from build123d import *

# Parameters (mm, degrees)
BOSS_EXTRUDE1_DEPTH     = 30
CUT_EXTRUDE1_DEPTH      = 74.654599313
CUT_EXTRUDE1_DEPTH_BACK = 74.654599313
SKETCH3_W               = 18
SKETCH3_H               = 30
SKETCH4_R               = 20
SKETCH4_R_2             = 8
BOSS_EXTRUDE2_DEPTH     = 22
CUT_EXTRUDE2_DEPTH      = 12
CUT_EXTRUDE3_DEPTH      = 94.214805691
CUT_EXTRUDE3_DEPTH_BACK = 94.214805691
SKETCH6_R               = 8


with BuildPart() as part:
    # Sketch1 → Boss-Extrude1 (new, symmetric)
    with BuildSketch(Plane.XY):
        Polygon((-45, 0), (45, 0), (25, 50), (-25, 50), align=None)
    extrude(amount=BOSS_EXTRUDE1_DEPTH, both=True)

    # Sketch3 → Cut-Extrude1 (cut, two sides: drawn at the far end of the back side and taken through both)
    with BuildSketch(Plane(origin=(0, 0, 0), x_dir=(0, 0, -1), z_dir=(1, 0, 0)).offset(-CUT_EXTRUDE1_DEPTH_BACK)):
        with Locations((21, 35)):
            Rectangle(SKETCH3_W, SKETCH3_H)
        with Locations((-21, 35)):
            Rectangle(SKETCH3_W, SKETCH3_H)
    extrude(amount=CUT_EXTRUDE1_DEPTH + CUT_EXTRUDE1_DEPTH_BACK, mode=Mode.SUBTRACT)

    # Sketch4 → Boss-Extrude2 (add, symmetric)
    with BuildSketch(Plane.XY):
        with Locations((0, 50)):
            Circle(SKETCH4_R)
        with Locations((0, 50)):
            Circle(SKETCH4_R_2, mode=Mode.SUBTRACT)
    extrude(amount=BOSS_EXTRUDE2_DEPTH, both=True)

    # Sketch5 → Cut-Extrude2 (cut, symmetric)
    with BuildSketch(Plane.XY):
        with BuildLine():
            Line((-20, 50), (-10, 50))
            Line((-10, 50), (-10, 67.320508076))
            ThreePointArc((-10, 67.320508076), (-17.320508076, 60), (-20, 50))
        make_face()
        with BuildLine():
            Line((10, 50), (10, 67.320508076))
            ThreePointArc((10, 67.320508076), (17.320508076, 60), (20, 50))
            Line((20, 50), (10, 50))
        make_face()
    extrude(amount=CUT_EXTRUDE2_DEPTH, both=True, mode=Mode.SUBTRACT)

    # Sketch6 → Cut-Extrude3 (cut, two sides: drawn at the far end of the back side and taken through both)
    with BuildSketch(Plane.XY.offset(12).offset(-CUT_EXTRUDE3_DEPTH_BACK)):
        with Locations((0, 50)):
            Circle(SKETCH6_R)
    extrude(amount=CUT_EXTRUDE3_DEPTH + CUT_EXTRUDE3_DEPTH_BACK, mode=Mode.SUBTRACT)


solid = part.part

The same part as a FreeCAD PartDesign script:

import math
import FreeCAD as App
import Part
import Sketcher

V = App.Vector
Q = App.Units.Quantity

doc = App.newDocument("Part")
params = doc.addObject("Spreadsheet::Sheet", "Params")
for row, (alias, value) in enumerate([
    ("sketch1_width", "90 mm"),
    ("sketch1_width2", "50 mm"),
    ("pad1_length", "60 mm"),
    ("sketch2_width", "30 mm"),
    ("sketch2_height", "18 mm"),
    ("sketch3_diameter", "40 mm"),
    ("sketch3_diameter2", "16 mm"),
    ("pad2_length", "44 mm"),
    ("sketch4_radius", "20 mm"),
    ("sketch4_width", "10 mm"),
    ("pocket2_length", "24 mm"),
    ("sketch5_diameter", "16 mm"),
], start=1):
    params.set(f"A{row}", alias)
    params.set(f"B{row}", "=" + value)
    params.setAlias(f"B{row}", alias)

body = doc.addObject("PartDesign::Body", "Body")

sketch1 = body.newObject("Sketcher::SketchObject", "Sketch")
sketch1.AttachmentSupport = (doc.getObject("XY_Plane"), [""])
sketch1.MapMode = "FlatFace"
sketch1.addGeometry([
    Part.LineSegment(V(-45, 0, 0), V(45, 0, 0)),
    Part.LineSegment(V(45, 0, 0), V(25, 50, 0)),
    Part.LineSegment(V(25, 50, 0), V(-25, 50, 0)),
    Part.LineSegment(V(-25, 50, 0), V(-45, 0, 0)),
], False)
sketch1.addConstraint([
    Sketcher.Constraint("Coincident", 0, 2, 1, 1),
    Sketcher.Constraint("Coincident", 1, 2, 2, 1),
    Sketcher.Constraint("Coincident", 2, 2, 3, 1),
    Sketcher.Constraint("Coincident", 3, 2, 0, 1),
    Sketcher.Constraint("Horizontal", 0),
    Sketcher.Constraint("Horizontal", 2),
    Sketcher.Constraint("Symmetric", 0, 2, 3, 2, -1, 1),
    Sketcher.Constraint("Equal", 1, 3),
    Sketcher.Constraint("DistanceX", 0, 1, 0, 2, Q("90 mm")),
    Sketcher.Constraint("DistanceX", 2, 2, 2, 1, Q("50 mm")),
    Sketcher.Constraint("DistanceY", -1, 1, 1, 2, Q("50 mm")),
])
sketch1.setExpression("Constraints[8]", "Params.sketch1_width")
sketch1.setExpression("Constraints[9]", "Params.sketch1_width2")
pad1 = body.newObject("PartDesign::Pad", "Pad")
pad1.Profile = sketch1
pad1.setExpression("Length", "Params.pad1_length")
pad1.Midplane = True

sketch2 = body.newObject("Sketcher::SketchObject", "Sketch001")
sketch2.AttachmentSupport = (doc.getObject("YZ_Plane"), [""])
sketch2.MapMode = "FlatFace"
sketch2.addGeometry([
    Part.LineSegment(V(50, -12, 0), V(20, -12, 0)),
    Part.LineSegment(V(20, -12, 0), V(20, -30, 0)),
    Part.LineSegment(V(20, -30, 0), V(50, -30, 0)),
    Part.LineSegment(V(50, -30, 0), V(50, -12, 0)),
    Part.LineSegment(V(50, 30, 0), V(20, 30, 0)),
    Part.LineSegment(V(20, 30, 0), V(20, 12, 0)),
    Part.LineSegment(V(20, 12, 0), V(50, 12, 0)),
    Part.LineSegment(V(50, 12, 0), V(50, 30, 0)),
], False)
sketch2.addConstraint([
    Sketcher.Constraint("Coincident", 0, 2, 1, 1),
    Sketcher.Constraint("Coincident", 1, 2, 2, 1),
    Sketcher.Constraint("Coincident", 2, 2, 3, 1),
    Sketcher.Constraint("Coincident", 3, 2, 0, 1),
    Sketcher.Constraint("Coincident", 4, 2, 5, 1),
    Sketcher.Constraint("Coincident", 5, 2, 6, 1),
    Sketcher.Constraint("Coincident", 6, 2, 7, 1),
    Sketcher.Constraint("Coincident", 7, 2, 4, 1),
    Sketcher.Constraint("Horizontal", 0),
    Sketcher.Constraint("Vertical", 1),
    Sketcher.Constraint("Horizontal", 2),
    Sketcher.Constraint("Vertical", 3),
    Sketcher.Constraint("Horizontal", 4),
    Sketcher.Constraint("Vertical", 5),
    Sketcher.Constraint("Horizontal", 6),
    Sketcher.Constraint("Vertical", 7),
    Sketcher.Constraint("Symmetric", 1, 2, 4, 2, -1),
    Sketcher.Constraint("Symmetric", 3, 2, 6, 2, -1),
    Sketcher.Constraint("DistanceX", 0, 2, 0, 1, Q("30 mm")),
    Sketcher.Constraint("DistanceY", 1, 2, 1, 1, Q("18 mm")),
    Sketcher.Constraint("DistanceX", -1, 1, 0, 2, Q("20 mm")),
    Sketcher.Constraint("DistanceY", 0, 2, -1, 1, Q("12 mm")),
])
sketch2.setExpression("Constraints[18]", "Params.sketch2_width")
sketch2.setExpression("Constraints[19]", "Params.sketch2_height")
pocket1 = body.newObject("PartDesign::Pocket", "Pocket")
pocket1.Profile = sketch2
pocket1.Type = "ThroughAll"
pocket1.Midplane = True

sketch3 = body.newObject("Sketcher::SketchObject", "Sketch002")
sketch3.AttachmentSupport = (doc.getObject("XY_Plane"), [""])
sketch3.MapMode = "FlatFace"
sketch3.addGeometry([
    Part.Circle(V(0, 50, 0), V(0, 0, 1), 20),
    Part.Circle(V(0, 50, 0), V(0, 0, 1), 8),
], False)
sketch3.addConstraint([
    Sketcher.Constraint("Coincident", 1, 3, 0, 3),
    Sketcher.Constraint("PointOnObject", 0, 3, -2),
    Sketcher.Constraint("Diameter", 0, Q("40 mm")),
    Sketcher.Constraint("Diameter", 1, Q("16 mm")),
    Sketcher.Constraint("DistanceY", -1, 1, 0, 3, Q("50 mm")),
])
sketch3.setExpression("Constraints[2]", "Params.sketch3_diameter")
sketch3.setExpression("Constraints[3]", "Params.sketch3_diameter2")
pad2 = body.newObject("PartDesign::Pad", "Pad001")
pad2.Profile = sketch3
pad2.setExpression("Length", "Params.pad2_length")
pad2.Midplane = True

sketch4 = body.newObject("Sketcher::SketchObject", "Sketch003")
sketch4.AttachmentSupport = (doc.getObject("XY_Plane"), [""])
sketch4.MapMode = "FlatFace"
sketch4.addGeometry([
    Part.LineSegment(V(-20, 50, 0), V(-10, 50, 0)),
    Part.LineSegment(V(-10, 50, 0), V(-10, 67, 0)),
    Part.ArcOfCircle(Part.Circle(V(0, 50, 0), V(0, 0, 1), 20), math.radians(120), math.radians(180)),
    Part.LineSegment(V(10, 67, 0), V(10, 50, 0)),
    Part.LineSegment(V(10, 50, 0), V(20, 50, 0)),
    Part.ArcOfCircle(Part.Circle(V(0, 50, 0), V(0, 0, 1), 20), math.radians(0), math.radians(60)),
], False)
sketch4.addConstraint([
    Sketcher.Constraint("Coincident", 0, 2, 1, 1),
    Sketcher.Constraint("Coincident", 1, 2, 2, 1),
    Sketcher.Constraint("Coincident", 2, 2, 0, 1),
    Sketcher.Constraint("Coincident", 3, 2, 4, 1),
    Sketcher.Constraint("Coincident", 4, 2, 5, 1),
    Sketcher.Constraint("Coincident", 5, 2, 3, 1),
    Sketcher.Constraint("Horizontal", 0),
    Sketcher.Constraint("Vertical", 1),
    Sketcher.Constraint("Vertical", 3),
    Sketcher.Constraint("Horizontal", 4),
    Sketcher.Constraint("Coincident", 5, 3, 2, 3),
    Sketcher.Constraint("Equal", 2, 5),
    Sketcher.Constraint("Symmetric", 0, 2, 3, 2, -2),
    Sketcher.Constraint("PointOnObject", 2, 3, -2),
    Sketcher.Constraint("Horizontal", 5, 3, 0, 2),
    Sketcher.Constraint("Radius", 2, Q("20 mm")),
    Sketcher.Constraint("DistanceX", 0, 1, 0, 2, Q("10 mm")),
    Sketcher.Constraint("DistanceY", -1, 1, 2, 3, Q("50 mm")),
])
sketch4.setExpression("Constraints[15]", "Params.sketch4_radius")
sketch4.setExpression("Constraints[16]", "Params.sketch4_width")
pocket2 = body.newObject("PartDesign::Pocket", "Pocket001")
pocket2.Profile = sketch4
pocket2.setExpression("Length", "Params.pocket2_length")
pocket2.Midplane = True

sketch5 = body.newObject("Sketcher::SketchObject", "Sketch004")
sketch5.AttachmentSupport = (doc.getObject("XY_Plane"), [""])
sketch5.MapMode = "FlatFace"
sketch5.AttachmentOffset = App.Placement(V(0, 0, 12), App.Rotation())
sketch5.addGeometry(Part.Circle(V(0, 50, 0), V(0, 0, 1), 8), False)
sketch5.addConstraint([
    Sketcher.Constraint("PointOnObject", 0, 3, -2),
    Sketcher.Constraint("Diameter", 0, Q("16 mm")),
    Sketcher.Constraint("DistanceY", -1, 1, 0, 3, Q("50 mm")),
])
sketch5.setExpression("Constraints[1]", "Params.sketch5_diameter")
pocket3 = body.newObject("PartDesign::Pocket", "Pocket002")
pocket3.Profile = sketch5
pocket3.Type = "ThroughAll"
pocket3.Midplane = True

doc.recompute()
